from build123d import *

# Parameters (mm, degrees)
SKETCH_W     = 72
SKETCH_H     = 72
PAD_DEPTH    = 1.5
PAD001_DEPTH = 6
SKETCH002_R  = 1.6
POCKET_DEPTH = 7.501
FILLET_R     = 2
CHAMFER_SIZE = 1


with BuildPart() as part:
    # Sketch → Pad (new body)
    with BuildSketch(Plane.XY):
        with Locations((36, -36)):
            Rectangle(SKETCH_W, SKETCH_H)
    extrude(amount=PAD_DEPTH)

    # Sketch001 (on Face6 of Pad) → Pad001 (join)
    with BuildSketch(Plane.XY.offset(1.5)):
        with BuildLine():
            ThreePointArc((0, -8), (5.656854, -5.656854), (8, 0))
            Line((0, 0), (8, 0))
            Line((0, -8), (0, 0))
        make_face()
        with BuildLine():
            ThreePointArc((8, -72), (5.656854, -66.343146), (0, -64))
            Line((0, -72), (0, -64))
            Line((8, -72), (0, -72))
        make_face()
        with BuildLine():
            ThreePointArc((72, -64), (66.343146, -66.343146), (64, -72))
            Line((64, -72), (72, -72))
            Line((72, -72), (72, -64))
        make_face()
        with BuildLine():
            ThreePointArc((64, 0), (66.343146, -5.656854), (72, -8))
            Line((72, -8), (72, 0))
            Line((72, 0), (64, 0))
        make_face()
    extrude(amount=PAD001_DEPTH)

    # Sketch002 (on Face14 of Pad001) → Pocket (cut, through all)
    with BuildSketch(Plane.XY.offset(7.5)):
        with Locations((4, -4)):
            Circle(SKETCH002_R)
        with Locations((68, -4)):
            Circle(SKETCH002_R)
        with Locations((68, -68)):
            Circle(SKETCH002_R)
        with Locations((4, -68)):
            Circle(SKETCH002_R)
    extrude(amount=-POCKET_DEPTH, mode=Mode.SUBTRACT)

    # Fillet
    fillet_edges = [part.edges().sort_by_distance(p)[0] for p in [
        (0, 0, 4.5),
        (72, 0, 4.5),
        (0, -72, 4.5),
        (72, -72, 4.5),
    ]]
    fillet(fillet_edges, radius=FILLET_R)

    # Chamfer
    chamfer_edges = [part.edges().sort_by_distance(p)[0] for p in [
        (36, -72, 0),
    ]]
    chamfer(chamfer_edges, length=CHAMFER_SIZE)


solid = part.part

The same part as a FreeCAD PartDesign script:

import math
import FreeCAD as App
import Part
import Sketcher
from FreeCAD import Vector
Q = App.Units.Quantity


def edges_at(feature, points):
    """Names of the edges that pass closest to the given points."""
    edges = feature.Shape.Edges
    near = lambda p: min(range(len(edges)), key=lambda i: edges[i].distToShape(Part.Vertex(*p))[0])
    return sorted({f"Edge{near(p) + 1}" for p in points})

doc = App.newDocument("Part")
params = doc.addObject("Spreadsheet::Sheet", "Params")
for row, (alias, value) in enumerate([
    ("sketch1_width", "72 mm"),
    ("pad1_length", "1.5 mm"),
    ("sketch2_radius", "8.000001 mm"),
    ("pad2_length", "6 mm"),
    ("sketch3_diameter", "3.2 mm"),
    ("fillet_radius", "2 mm"),
    ("chamfer_size", "1 mm"),
], start=1):
    params.set(f"A{row}", alias)
    params.set(f"B{row}", "=" + value)
    params.setAlias(f"B{row}", alias)

body = doc.addObject("PartDesign::Body", "Body")

# Sketch on XY plane
sketch1 = doc.addObject("Sketcher::SketchObject", "Sketch")
body.addObject(sketch1)
sketch1.AttachmentSupport = (doc.XY_Plane, [""])
sketch1.MapMode = "FlatFace"
sketch1.addGeometry([
    Part.LineSegment(Vector(0, 0, 0), Vector(0, -72, 0)),
    Part.LineSegment(Vector(0, -72, 0), Vector(72, -72, 0)),
    Part.LineSegment(Vector(72, -72, 0), Vector(72, 0, 0)),
    Part.LineSegment(Vector(72, 0, 0), Vector(0, 0, 0)),
], False)
sketch1.addConstraint([
    Sketcher.Constraint("Coincident", 0, 2, 1, 1),
    Sketcher.Constraint("Coincident", 1, 2, 2, 1),
    Sketcher.Constraint("Coincident", 2, 2, 3, 1),
    Sketcher.Constraint("Coincident", 3, 2, 0, 1),
    Sketcher.Constraint("Vertical", 0),
    Sketcher.Constraint("Horizontal", 1),
    Sketcher.Constraint("Vertical", 2),
    Sketcher.Constraint("Horizontal", 3),
    Sketcher.Constraint("Coincident", 3, 2, -1, 1),
    Sketcher.Constraint("Equal", 3, 0),
    Sketcher.Constraint("DistanceX", 1, 1, 1, 2, Q("72 mm")),
])
sketch1.setExpression("Constraints[10]", "Params.sketch1_width")
pad1 = doc.addObject("PartDesign::Pad", "Pad")
body.addObject(pad1)
pad1.Profile = sketch1
pad1.setExpression("Length", "Params.pad1_length")

# Sketch on XY plane
sketch2 = doc.addObject("Sketcher::SketchObject", "Sketch001")
body.addObject(sketch2)
sketch2.AttachmentSupport = (doc.XY_Plane, [""])
sketch2.MapMode = "FlatFace"
sketch2.AttachmentOffset = App.Placement(Vector(0, 0, 1.5), App.Rotation())
sketch2.addGeometry([
    Part.ArcOfCircle(Part.Circle(Vector(-0.000001, 0.000001, 0), Vector(0, 0, 1), 8.000001), math.radians(-89.999994), math.radians(-0.000006)),  # 0
    Part.LineSegment(Vector(8, 0, 0), Vector(0, 0, 0)),  # 1
    Part.LineSegment(Vector(0, 0, 0), Vector(0, -8, 0)),  # 2
    Part.ArcOfCircle(Part.Circle(Vector(-0.000001, -72.000001, 0), Vector(0, 0, 1), 8.000001), math.radians(0.000006), math.radians(89.999994)),  # 3
    Part.LineSegment(Vector(0, -64, 0), Vector(0, -72, 0)),  # 4
    Part.LineSegment(Vector(0, -72, 0), Vector(8, -72, 0)),  # 5
    Part.ArcOfCircle(Part.Circle(Vector(72.000001, -72.000001, 0), Vector(0, 0, 1), 8.000001), math.radians(90.000006), math.radians(179.999994)),  # 6
    Part.LineSegment(Vector(64, -72, 0), Vector(72, -72, 0)),  # 7
    Part.LineSegment(Vector(72, -72, 0), Vector(72, -64, 0)),  # 8
    Part.ArcOfCircle(Part.Circle(Vector(72.000001, 0.000001, 0), Vector(0, 0, 1), 8.000001), math.radians(-179.999994), math.radians(-90.000006)),  # 9
    Part.LineSegment(Vector(72, -8, 0), Vector(72, 0, 0)),  # 10
    Part.LineSegment(Vector(72, 0, 0), Vector(64, 0, 0)),  # 11
], False)
sketch2.addConstraint([
    Sketcher.Constraint("Coincident", 0, 2, 1, 1),
    Sketcher.Constraint("Coincident", 1, 2, 2, 1),
    Sketcher.Constraint("Coincident", 2, 2, 0, 1),
    Sketcher.Constraint("Coincident", 3, 2, 4, 1),
    Sketcher.Constraint("Coincident", 4, 2, 5, 1),
    Sketcher.Constraint("Coincident", 5, 2, 3, 1),
    Sketcher.Constraint("Coincident", 6, 2, 7, 1),
    Sketcher.Constraint("Coincident", 7, 2, 8, 1),
    Sketcher.Constraint("Coincident", 8, 2, 6, 1),
    Sketcher.Constraint("Coincident", 9, 2, 10, 1),
    Sketcher.Constraint("Coincident", 10, 2, 11, 1),
    Sketcher.Constraint("Coincident", 11, 2, 9, 1),
    Sketcher.Constraint("Horizontal", 1),
    Sketcher.Constraint("Vertical", 2),
    Sketcher.Constraint("Vertical", 4),
    Sketcher.Constraint("Horizontal", 5),
    Sketcher.Constraint("Horizontal", 7),
    Sketcher.Constraint("Vertical", 8),
    Sketcher.Constraint("Vertical", 10),
    Sketcher.Constraint("Horizontal", 11),
    Sketcher.Constraint("Coincident", 0, 3, -1, 1),
    Sketcher.Constraint("Coincident", 1, 2, -1, 1),
    Sketcher.Constraint("Coincident", 4, 2, 3, 3),
    Sketcher.Constraint("Coincident", 7, 2, 6, 3),
    Sketcher.Constraint("Coincident", 10, 2, 9, 3),
    Sketcher.Constraint("Equal", 0, 3),
    Sketcher.Constraint("Equal", 3, 6),
    Sketcher.Constraint("Equal", 6, 9),
    Sketcher.Constraint("PointOnObject", 3, 3, -2),
    Sketcher.Constraint("PointOnObject", 9, 3, -1),
    Sketcher.Constraint("Horizontal", 3, 3, 6, 3),
    Sketcher.Constraint("Vertical", 6, 3, 9, 3),
    Sketcher.Constraint("Radius", 0, Q("8.000001 mm")),
    Sketcher.Constraint("DistanceY", 3, 3, -1, 1, Q("72.000001 mm")),
    Sketcher.Constraint("DistanceX", -1, 1, 6, 3, Q("72.000001 mm")),
])
sketch2.setExpression("Constraints[32]", "Params.sketch2_radius")
pad2 = doc.addObject("PartDesign::Pad", "Pad001")
body.addObject(pad2)
pad2.Profile = sketch2
pad2.setExpression("Length", "Params.pad2_length")

# Sketch on XY plane
sketch3 = doc.addObject("Sketcher::SketchObject", "Sketch002")
body.addObject(sketch3)
sketch3.AttachmentSupport = (doc.XY_Plane, [""])
sketch3.MapMode = "FlatFace"
sketch3.AttachmentOffset = App.Placement(Vector(0, 0, 7.5), App.Rotation())
sketch3.addGeometry([
    Part.Circle(Vector(4, -4, 0), Vector(0, 0, 1), 1.6),
    Part.Circle(Vector(68, -4, 0), Vector(0, 0, 1), 1.6),
    Part.Circle(Vector(68, -68, 0), Vector(0, 0, 1), 1.6),
    Part.Circle(Vector(4, -68, 0), Vector(0, 0, 1), 1.6),
], False)
sketch3.addConstraint([
    Sketcher.Constraint("Equal", 0, 1),
    Sketcher.Constraint("Equal", 1, 2),
    Sketcher.Constraint("Equal", 2, 3),
    Sketcher.Constraint("Horizontal", 0, 3, 1, 3),
    Sketcher.Constraint("Horizontal", 2, 3, 3, 3),
    Sketcher.Constraint("Vertical", 1, 3, 2, 3),
    Sketcher.Constraint("Vertical", 0, 3, 3, 3),
    Sketcher.Constraint("Diameter", 0, Q("3.2 mm")),
    Sketcher.Constraint("DistanceX", -1, 1, 0, 3, Q("4 mm")),
    Sketcher.Constraint("DistanceY", 0, 3, -1, 1, Q("4 mm")),
    Sketcher.Constraint("DistanceX", -1, 1, 1, 3, Q("68 mm")),
    Sketcher.Constraint("DistanceY", 2, 3, -1, 1, Q("68 mm")),
])
sketch3.setExpression("Constraints[7]", "Params.sketch3_diameter")
pocket1 = doc.addObject("PartDesign::Pocket", "Pocket")
body.addObject(pocket1)
pocket1.Profile = sketch3
pocket1.Type = "ThroughAll"
doc.recompute()

fillet = doc.addObject("PartDesign::Fillet", "Fillet")
body.addObject(fillet)
fillet.Base = (pocket1, edges_at(pocket1, [
    (0, 0, 3.75),
    (72, 0, 3.75),
    (0, -72, 3.75),
    (72, -72, 3.75),
]))
fillet.setExpression("Radius", "Params.fillet_radius")
doc.recompute()

chamfer = doc.addObject("PartDesign::Chamfer", "Chamfer")
body.addObject(chamfer)
chamfer.Base = (fillet, edges_at(fillet, [(36, -72, 0)]))
chamfer.setExpression("Size", "Params.chamfer_size")

doc.recompute()
